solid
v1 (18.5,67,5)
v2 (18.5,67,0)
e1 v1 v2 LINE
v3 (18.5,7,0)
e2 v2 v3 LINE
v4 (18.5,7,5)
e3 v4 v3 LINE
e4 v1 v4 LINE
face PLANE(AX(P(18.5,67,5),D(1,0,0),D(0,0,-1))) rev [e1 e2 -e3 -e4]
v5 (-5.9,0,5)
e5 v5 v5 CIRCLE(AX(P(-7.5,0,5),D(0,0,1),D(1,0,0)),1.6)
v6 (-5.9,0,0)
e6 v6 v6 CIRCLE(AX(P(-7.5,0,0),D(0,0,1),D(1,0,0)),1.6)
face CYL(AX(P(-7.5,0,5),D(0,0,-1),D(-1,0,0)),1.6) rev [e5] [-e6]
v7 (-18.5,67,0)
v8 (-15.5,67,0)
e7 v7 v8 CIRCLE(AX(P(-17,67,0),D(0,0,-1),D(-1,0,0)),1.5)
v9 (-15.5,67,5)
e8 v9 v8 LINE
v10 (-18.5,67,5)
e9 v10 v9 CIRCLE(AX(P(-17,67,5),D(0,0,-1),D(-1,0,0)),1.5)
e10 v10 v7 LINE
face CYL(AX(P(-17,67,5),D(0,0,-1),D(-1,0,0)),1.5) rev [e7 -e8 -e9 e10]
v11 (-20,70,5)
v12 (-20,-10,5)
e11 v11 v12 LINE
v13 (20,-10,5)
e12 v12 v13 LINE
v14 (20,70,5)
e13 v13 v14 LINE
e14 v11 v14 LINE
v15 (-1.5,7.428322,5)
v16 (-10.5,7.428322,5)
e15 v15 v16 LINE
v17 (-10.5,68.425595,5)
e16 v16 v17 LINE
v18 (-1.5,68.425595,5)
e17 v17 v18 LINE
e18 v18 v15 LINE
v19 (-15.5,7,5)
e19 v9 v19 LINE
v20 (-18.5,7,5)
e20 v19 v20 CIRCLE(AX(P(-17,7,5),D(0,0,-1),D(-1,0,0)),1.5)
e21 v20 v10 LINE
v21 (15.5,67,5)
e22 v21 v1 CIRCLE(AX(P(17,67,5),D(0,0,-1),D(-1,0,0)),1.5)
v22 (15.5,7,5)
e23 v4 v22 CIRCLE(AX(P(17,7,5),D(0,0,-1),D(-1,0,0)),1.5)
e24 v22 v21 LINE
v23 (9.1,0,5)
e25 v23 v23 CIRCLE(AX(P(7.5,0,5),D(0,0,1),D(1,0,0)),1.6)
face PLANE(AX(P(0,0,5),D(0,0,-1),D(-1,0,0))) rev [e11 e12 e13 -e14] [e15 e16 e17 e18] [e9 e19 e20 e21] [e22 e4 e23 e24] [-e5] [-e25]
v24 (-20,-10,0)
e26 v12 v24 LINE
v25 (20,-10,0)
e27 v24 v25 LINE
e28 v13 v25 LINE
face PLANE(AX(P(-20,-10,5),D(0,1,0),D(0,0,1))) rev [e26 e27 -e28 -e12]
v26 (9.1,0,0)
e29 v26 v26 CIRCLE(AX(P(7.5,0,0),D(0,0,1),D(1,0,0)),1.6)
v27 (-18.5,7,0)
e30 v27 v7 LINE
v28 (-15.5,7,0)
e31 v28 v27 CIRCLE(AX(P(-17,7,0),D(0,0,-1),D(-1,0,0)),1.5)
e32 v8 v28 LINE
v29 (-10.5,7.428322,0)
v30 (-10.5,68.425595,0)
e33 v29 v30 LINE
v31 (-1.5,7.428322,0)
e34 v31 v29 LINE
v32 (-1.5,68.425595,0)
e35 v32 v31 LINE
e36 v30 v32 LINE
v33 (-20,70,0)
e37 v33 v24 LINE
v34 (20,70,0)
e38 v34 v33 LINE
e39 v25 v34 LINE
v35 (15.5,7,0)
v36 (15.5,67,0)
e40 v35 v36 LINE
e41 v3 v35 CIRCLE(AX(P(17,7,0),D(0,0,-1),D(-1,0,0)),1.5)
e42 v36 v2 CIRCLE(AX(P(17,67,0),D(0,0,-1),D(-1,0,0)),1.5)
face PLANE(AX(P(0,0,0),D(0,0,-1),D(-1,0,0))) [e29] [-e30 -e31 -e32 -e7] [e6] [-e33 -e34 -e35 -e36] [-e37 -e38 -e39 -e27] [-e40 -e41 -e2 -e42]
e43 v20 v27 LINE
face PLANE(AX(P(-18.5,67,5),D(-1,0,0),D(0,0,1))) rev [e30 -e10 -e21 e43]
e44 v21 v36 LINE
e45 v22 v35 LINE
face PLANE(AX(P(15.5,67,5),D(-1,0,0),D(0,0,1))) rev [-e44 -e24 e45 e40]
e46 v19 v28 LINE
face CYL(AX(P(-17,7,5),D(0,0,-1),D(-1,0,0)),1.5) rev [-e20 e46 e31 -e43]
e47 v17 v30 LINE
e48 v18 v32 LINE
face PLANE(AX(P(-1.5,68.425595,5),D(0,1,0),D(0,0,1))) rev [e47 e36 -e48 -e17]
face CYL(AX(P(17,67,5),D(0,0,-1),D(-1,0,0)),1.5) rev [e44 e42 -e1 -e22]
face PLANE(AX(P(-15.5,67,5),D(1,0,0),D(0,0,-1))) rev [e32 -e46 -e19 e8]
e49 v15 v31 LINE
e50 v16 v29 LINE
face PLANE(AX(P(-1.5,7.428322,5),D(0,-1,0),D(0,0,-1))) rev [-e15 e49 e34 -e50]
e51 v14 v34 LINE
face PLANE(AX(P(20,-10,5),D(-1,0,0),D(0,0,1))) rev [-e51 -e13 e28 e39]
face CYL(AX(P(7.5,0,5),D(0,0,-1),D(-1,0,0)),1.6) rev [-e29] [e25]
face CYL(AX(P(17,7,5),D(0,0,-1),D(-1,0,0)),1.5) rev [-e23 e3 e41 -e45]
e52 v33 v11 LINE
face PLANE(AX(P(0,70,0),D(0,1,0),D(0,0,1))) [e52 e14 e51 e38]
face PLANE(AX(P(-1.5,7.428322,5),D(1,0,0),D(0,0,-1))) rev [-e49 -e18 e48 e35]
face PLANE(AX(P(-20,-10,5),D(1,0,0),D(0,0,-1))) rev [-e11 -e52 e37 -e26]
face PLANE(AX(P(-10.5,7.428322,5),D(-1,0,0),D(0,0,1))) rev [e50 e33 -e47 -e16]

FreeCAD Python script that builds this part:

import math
import FreeCAD as App
import Part
import Sketcher

V = App.Vector
Q = App.Units.Quantity


def add_polygon(sketch, points):
    """Adds a closed chain of lines whose ends are joined by coincident constraints."""
    first, n = sketch.GeometryCount, len(points)
    for a, b in zip(points, points[1:] + points[:1]):
        sketch.addGeometry(Part.LineSegment(App.Vector(*a, 0), App.Vector(*b, 0)), False)
    for i in range(n):
        sketch.addConstraint(Sketcher.Constraint("Coincident", first + i, 2, first + (i + 1) % n, 1))

doc = App.newDocument("Part")
params = doc.addObject("Spreadsheet::Sheet", "Params")
for row, (alias, value) in enumerate([
    ("sketch1_diameter", "3.2 mm"),
    ("sketch1_width", "40 mm"),
    ("sketch1_height", "20 mm"),
    ("pad1_length", "5 mm"),
    ("sketch2_width", "40 mm"),
    ("sketch2_height", "5 mm"),
    ("pad2_length", "60 mm"),
    ("sketch3_radius", "1.5 mm"),
    ("sketch3_height", "60 mm"),
    ("sketch4_width", "9 mm"),
], start=1):
    params.set(f"A{row}", alias)
    params.set(f"B{row}", "=" + value)
    params.setAlias(f"B{row}", alias)

body = doc.addObject("PartDesign::Body", "Body")

# Sketch on XY plane
sketch1 = doc.addObject("Sketcher::SketchObject", "Sketch")
body.addObject(sketch1)
sketch1.AttachmentSupport = (doc.XY_Plane, [""])
sketch1.MapMode = "FlatFace"
add_polygon(sketch1, [(-20, 10), (-20, -10), (20, -10), (20, 10)])  # lines 0-3
sketch1.addGeometry(Part.Circle(V(-7.5, 0, 0), V(0, 0, 1), 1.6), False)  # 4
sketch1.addGeometry(Part.Circle(V(7.5, 0, 0), V(0, 0, 1), 1.6), False)  # 5
sketch1.addConstraint([
    Sketcher.Constraint("Vertical", 0),
    Sketcher.Constraint("Horizontal", 1),
    Sketcher.Constraint("Vertical", 2),
    Sketcher.Constraint("Horizontal", 3),
    Sketcher.Constraint("Equal", 4, 5),
    Sketcher.Constraint("Symmetric", 4, 3, 5, 3, -1, 1),
    Sketcher.Constraint("Symmetric", 0, 2, 2, 2, -1, 1),
    Sketcher.Constraint("PointOnObject", 4, 3, -1),
    Sketcher.Constraint("Diameter", 4, Q("3.2 mm")),
    Sketcher.Constraint("DistanceX", 1, 1, 1, 2, Q("40 mm")),
    Sketcher.Constraint("DistanceY", 0, 2, 0, 1, Q("20 mm")),
    Sketcher.Constraint("DistanceX", 4, 3, 5, 3, Q("15 mm")),
])
sketch1.setExpression("Constraints[12]", "Params.sketch1_diameter")
sketch1.setExpression("Constraints[13]", "Params.sketch1_width")
sketch1.setExpression("Constraints[14]", "Params.sketch1_height")
pad1 = doc.addObject("PartDesign::Pad", "Pad")
body.addObject(pad1)
pad1.Profile = sketch1
pad1.setExpression("Length", "Params.pad1_length")

# Sketch on XZ plane
sketch2 = doc.addObject("Sketcher::SketchObject", "Sketch001")
body.addObject(sketch2)
sketch2.AttachmentSupport = (doc.XZ_Plane, [""])
sketch2.MapMode = "FlatFace"
sketch2.AttachmentOffset = App.Placement(V(0, 0, -10), App.Rotation())
add_polygon(sketch2, [(-20, 0), (-20, 5), (20, 5), (20, 0)])  # lines 0-3
sketch2.addConstraint([
    Sketcher.Constraint("Vertical", 0),
    Sketcher.Constraint("Horizontal", 1),
    Sketcher.Constraint("Vertical", 2),
    Sketcher.Constraint("Horizontal", 3),
    Sketcher.Constraint("Symmetric", 2, 2, 3, 2, -1, 1),
    Sketcher.Constraint("DistanceX", 1, 1, 1, 2, Q("40 mm")),
    Sketcher.Constraint("DistanceY", 0, 1, 0, 2, Q("5 mm")),
])
sketch2.setExpression("Constraints[9]", "Params.sketch2_width")
sketch2.setExpression("Constraints[10]", "Params.sketch2_height")
pad2 = doc.addObject("PartDesign::Pad", "Pad001")
body.addObject(pad2)
pad2.Profile = sketch2
pad2.setExpression("Length", "Params.pad2_length")
pad2.Reversed = True

# Sketch on XY plane
sketch3 = doc.addObject("Sketcher::SketchObject", "Sketch002")
body.addObject(sketch3)
sketch3.AttachmentSupport = (doc.XY_Plane, [""])
sketch3.MapMode = "FlatFace"
sketch3.addGeometry([
    Part.LineSegment(V(15.5, 7, 0), V(15.5, 67, 0)),  # 0
    Part.ArcOfCircle(Part.Circle(V(17, 67, 0), V(0, 0, 1), 1.5), math.radians(0), math.radians(180)),  # 1
    Part.LineSegment(V(18.5, 67, 0), V(18.5, 7, 0)),  # 2
    Part.ArcOfCircle(Part.Circle(V(17, 7, 0), V(0, 0, 1), 1.5), math.radians(180), math.radians(360)),  # 3
    Part.LineSegment(V(-18.5, 7, 0), V(-18.5, 67, 0)),  # 4
    Part.ArcOfCircle(Part.Circle(V(-17, 67, 0), V(0, 0, 1), 1.5), math.radians(0), math.radians(180)),  # 5
    Part.LineSegment(V(-15.5, 67, 0), V(-15.5, 7, 0)),  # 6
    Part.ArcOfCircle(Part.Circle(V(-17, 7, 0), V(0, 0, 1), 1.5), math.radians(180), math.radians(360)),  # 7
], False)
sketch3.addConstraint([
    Sketcher.Constraint("Tangent", 0, 2, 1, 2),
    Sketcher.Constraint("Tangent", 1, 1, 2, 1),
    Sketcher.Constraint("Tangent", 2, 2, 3, 2),
    Sketcher.Constraint("Tangent", 3, 1, 0, 1),
    Sketcher.Constraint("Tangent", 4, 2, 5, 2),
    Sketcher.Constraint("Tangent", 5, 1, 6, 1),
    Sketcher.Constraint("Tangent", 6, 2, 7, 2),
    Sketcher.Constraint("Tangent", 7, 1, 4, 1),
    Sketcher.Constraint("Vertical", 0),
    Sketcher.Constraint("Vertical", 2),
    Sketcher.Constraint("Vertical", 4),
    Sketcher.Constraint("Vertical", 6),
    Sketcher.Constraint("Equal", 3, 5),
    Sketcher.Constraint("Symmetric", 1, 3, 5, 3, -2),
    Sketcher.Constraint("Horizontal", 3, 3, 7, 3),
    Sketcher.Constraint("Radius", 1, Q("1.5 mm")),
    Sketcher.Constraint("DistanceY", 0, 1, 0, 2, Q("60 mm")),
    Sketcher.Constraint("DistanceX", -1, 1, 1, 3, Q("17 mm")),
    Sketcher.Constraint("DistanceY", -1, 1, 1, 3, Q("67 mm")),
])
sketch3.setExpression("Constraints[15]", "Params.sketch3_radius")
sketch3.setExpression("Constraints[16]", "Params.sketch3_height")
pocket1 = doc.addObject("PartDesign::Pocket", "Pocket")
body.addObject(pocket1)
pocket1.Profile = sketch3
pocket1.Type = "ThroughAll"
pocket1.Reversed = True

# Sketch on XY plane
sketch4 = doc.addObject("Sketcher::SketchObject", "Sketch003")
body.addObject(sketch4)
sketch4.AttachmentSupport = (doc.XY_Plane, [""])
sketch4.MapMode = "FlatFace"
add_polygon(sketch4, [(-2, 68), (-2, 7), (-10, 7), (-10, 68)])  # lines 0-3
sketch4.addConstraint([
    Sketcher.Constraint("Vertical", 0),
    Sketcher.Constraint("Horizontal", 1),
    Sketcher.Constraint("Vertical", 2),
    Sketcher.Constraint("Horizontal", 3),
    Sketcher.Constraint("DistanceX", 1, 2, 1, 1, Q("9 mm")),
    Sketcher.Constraint("DistanceX", 0, 2, -1, 1, Q("1.5 mm")),
    Sketcher.Constraint("DistanceY", 0, 2, 0, 1, Q("60.997273 mm")),
    Sketcher.Constraint("DistanceY", -1, 1, 0, 2, Q("7.428322 mm")),
])
sketch4.setExpression("Constraints[8]", "Params.sketch4_width")
pocket2 = doc.addObject("PartDesign::Pocket", "Pocket001")
body.addObject(pocket2)
pocket2.Profile = sketch4
pocket2.Type = "ThroughAll"
pocket2.Reversed = True

doc.recompute()
